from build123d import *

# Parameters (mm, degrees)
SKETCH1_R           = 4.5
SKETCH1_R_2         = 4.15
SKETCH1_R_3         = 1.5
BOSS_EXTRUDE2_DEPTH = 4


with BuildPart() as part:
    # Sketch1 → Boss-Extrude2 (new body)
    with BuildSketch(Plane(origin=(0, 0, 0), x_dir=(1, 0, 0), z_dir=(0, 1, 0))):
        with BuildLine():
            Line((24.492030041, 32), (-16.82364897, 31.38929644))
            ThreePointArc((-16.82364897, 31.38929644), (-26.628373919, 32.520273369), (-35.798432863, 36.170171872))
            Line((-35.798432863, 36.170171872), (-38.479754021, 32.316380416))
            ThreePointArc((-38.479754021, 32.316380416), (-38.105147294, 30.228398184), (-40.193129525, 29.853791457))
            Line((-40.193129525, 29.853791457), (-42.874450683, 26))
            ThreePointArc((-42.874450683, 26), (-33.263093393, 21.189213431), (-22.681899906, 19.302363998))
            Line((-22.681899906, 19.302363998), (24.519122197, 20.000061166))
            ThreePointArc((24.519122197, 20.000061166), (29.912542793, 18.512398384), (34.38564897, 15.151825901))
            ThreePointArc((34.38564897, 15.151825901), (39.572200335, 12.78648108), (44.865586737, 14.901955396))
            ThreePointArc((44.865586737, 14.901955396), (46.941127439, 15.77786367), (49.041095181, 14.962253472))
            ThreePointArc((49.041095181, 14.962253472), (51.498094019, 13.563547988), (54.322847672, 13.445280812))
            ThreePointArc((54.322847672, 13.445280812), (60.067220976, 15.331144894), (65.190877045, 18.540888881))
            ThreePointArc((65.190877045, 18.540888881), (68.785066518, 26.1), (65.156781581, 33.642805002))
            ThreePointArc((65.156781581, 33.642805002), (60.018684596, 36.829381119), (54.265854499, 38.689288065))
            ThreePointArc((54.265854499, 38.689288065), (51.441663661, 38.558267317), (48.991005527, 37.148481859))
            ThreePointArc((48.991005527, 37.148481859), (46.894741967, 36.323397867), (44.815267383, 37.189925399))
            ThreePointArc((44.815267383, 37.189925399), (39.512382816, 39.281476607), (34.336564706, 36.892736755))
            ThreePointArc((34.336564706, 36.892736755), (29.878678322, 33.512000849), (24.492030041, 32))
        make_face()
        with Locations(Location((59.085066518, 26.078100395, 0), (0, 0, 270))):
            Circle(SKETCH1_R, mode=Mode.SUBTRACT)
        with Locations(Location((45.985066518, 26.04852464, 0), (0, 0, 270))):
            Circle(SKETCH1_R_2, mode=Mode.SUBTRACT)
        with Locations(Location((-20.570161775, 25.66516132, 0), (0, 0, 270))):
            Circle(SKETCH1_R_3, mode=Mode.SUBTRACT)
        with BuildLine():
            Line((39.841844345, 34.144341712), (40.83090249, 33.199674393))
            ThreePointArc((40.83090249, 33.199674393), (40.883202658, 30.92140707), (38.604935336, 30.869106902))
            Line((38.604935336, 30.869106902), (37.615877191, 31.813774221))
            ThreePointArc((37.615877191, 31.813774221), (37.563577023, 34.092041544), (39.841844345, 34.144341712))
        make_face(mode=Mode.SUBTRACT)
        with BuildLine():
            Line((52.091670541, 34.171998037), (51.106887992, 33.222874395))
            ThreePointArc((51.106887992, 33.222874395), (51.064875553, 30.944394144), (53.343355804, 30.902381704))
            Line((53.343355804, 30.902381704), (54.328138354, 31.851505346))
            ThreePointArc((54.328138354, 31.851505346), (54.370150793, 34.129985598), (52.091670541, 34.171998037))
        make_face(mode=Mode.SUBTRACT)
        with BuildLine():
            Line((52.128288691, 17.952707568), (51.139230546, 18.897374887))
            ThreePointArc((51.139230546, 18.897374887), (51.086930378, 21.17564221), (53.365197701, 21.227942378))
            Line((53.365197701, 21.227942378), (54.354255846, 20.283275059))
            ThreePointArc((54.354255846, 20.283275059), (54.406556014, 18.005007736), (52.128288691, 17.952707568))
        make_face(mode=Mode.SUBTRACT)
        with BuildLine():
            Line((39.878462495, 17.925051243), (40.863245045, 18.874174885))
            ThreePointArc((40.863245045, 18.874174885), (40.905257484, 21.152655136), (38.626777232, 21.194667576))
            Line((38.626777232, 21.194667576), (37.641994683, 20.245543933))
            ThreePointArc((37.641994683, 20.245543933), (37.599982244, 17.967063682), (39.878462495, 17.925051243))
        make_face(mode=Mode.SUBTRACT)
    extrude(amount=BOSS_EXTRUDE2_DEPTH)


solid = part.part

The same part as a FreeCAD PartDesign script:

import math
import FreeCAD as App
import Part
import Sketcher

V = App.Vector
Q = App.Units.Quantity

doc = App.newDocument("Part")
params = doc.addObject("Spreadsheet::Sheet", "Params")
for row, (alias, value) in enumerate([
    ("sketch1_diameter", "3 mm"),
    ("sketch1_diameter2", "9 mm"),
    ("sketch1_radius", "15 mm"),
    ("sketch1_radius2", "3 mm"),
    ("sketch1_radius3", "6 mm"),
    ("pad1_length", "4 mm"),
], start=1):
    params.set(f"A{row}", alias)
    params.set(f"B{row}", "=" + value)
    params.setAlias(f"B{row}", alias)

body = doc.addObject("PartDesign::Body", "Body")

# Sketch on XZ plane
sketch1 = body.newObject("Sketcher::SketchObject", "Sketch")
sketch1.AttachmentSupport = (doc.getObject("XZ_Plane"), [""])
sketch1.MapMode = "FlatFace"
sketch1.addGeometry(Part.LineSegment(V(24.5, -32, 0), V(-16.8, -31.4, 0)), False)
sketch1.addGeometry(Part.ArcOfCircle(Part.Circle(V(-17.5, -68.9, 0), V(0, 0, 1), 37.5), math.radians(89), math.radians(119)), False)
sketch1.addGeometry(Part.LineSegment(V(-35.8, -36.2, 0), V(-38.5, -32.3, 0)), False)
sketch1.addGeometry(Part.ArcOfCircle(Part.Circle(V(-39.3, -31.1, 0), V(0, 0, 1), 1.5), math.radians(-55), math.radians(125)), False)
sketch1.addGeometry(Part.LineSegment(V(-40.2, -29.9, 0), V(-42.9, -26, 0)), False)
sketch1.addGeometry(Part.ArcOfCircle(Part.Circle(V(-21.5, -56.8, 0), V(0, 0, 1), 37.5), math.radians(92), math.radians(125)), False)
sketch1.addGeometry(Part.LineSegment(V(-22.7, -19.3, 0), V(24.5, -20, 0)), False)
sketch1.addGeometry(Part.ArcOfCircle(Part.Circle(V(23.3, -5, 0), V(0, 0, 1), 15), math.radians(-85), math.radians(-42)), False)
sketch1.addGeometry(Part.ArcOfCircle(Part.Circle(V(39.7, -20, 0), V(0, 0, 1), 7.3), math.radians(45), math.radians(138)), False)
sketch1.addGeometry(Part.ArcOfCircle(Part.Circle(V(47, -12.8, 0), V(0, 0, 1), 3), math.radians(-135), math.radians(-47)), False)
sketch1.addGeometry(Part.ArcOfCircle(Part.Circle(V(53.2, -19.3, 0), V(0, 0, 1), 6), math.radians(79), math.radians(133)), False)
sketch1.addGeometry(Part.ArcOfCircle(Part.Circle(V(49.5, -38, 0), V(0, 0, 1), 25), math.radians(51), math.radians(79)), False)
sketch1.addGeometry(Part.ArcOfCircle(Part.Circle(V(59.1, -26.1, 0), V(0, 0, 1), 9.7), math.radians(-51), math.radians(51)), False)
sketch1.addGeometry(Part.ArcOfCircle(Part.Circle(V(49.5, -14.1, 0), V(0, 0, 1), 25), math.radians(-79), math.radians(-51)), False)
sketch1.addGeometry(Part.ArcOfCircle(Part.Circle(V(53.1, -32.8, 0), V(0, 0, 1), 6), math.radians(-134), math.radians(-79)), False)
sketch1.addGeometry(Part.ArcOfCircle(Part.Circle(V(46.9, -39.3, 0), V(0, 0, 1), 3), math.radians(46), math.radians(135)), False)
sketch1.addGeometry(Part.ArcOfCircle(Part.Circle(V(39.7, -32, 0), V(0, 0, 1), 7.3), math.radians(-138), math.radians(-45)), False)
sketch1.addGeometry(Part.ArcOfCircle(Part.Circle(V(23.2, -46.9, 0), V(0, 0, 1), 15), math.radians(42), math.radians(85)), False)
sketch1.addGeometry(Part.Circle(V(-20.6, -25.7, 0), V(0, 0, 1), 1.5), False)
sketch1.addGeometry(Part.LineSegment(V(40.9, -18.9, 0), V(39.9, -17.9, 0)), False)
sketch1.addGeometry(Part.ArcOfCircle(Part.Circle(V(38.8, -19.1, 0), V(0, 0, 1), 1.6), math.radians(46), math.radians(226)), False)
sketch1.addGeometry(Part.LineSegment(V(37.6, -20.2, 0), V(38.6, -21.2, 0)), False)
sketch1.addGeometry(Part.ArcOfCircle(Part.Circle(V(39.7, -20, 0), V(0, 0, 1), 1.6), math.radians(-134), math.radians(46)), False)
sketch1.addGeometry(Part.ArcOfCircle(Part.Circle(V(53.2, -19.1, 0), V(0, 0, 1), 1.6), math.radians(-46), math.radians(134)), False)
sketch1.addGeometry(Part.LineSegment(V(52.1, -18, 0), V(51.1, -18.9, 0)), False)
sketch1.addGeometry(Part.ArcOfCircle(Part.Circle(V(52.3, -20.1, 0), V(0, 0, 1), 1.6), math.radians(134), math.radians(314)), False)
sketch1.addGeometry(Part.LineSegment(V(53.4, -21.2, 0), V(54.4, -20.3, 0)), False)
sketch1.addGeometry(Part.Circle(V(46, -26, 0), V(0, 0, 1), 4.2), False)
sketch1.addGeometry(Part.Circle(V(59.1, -26.1, 0), V(0, 0, 1), 4.5), False)
sketch1.addGeometry(Part.ArcOfCircle(Part.Circle(V(38.7, -33, 0), V(0, 0, 1), 1.6), math.radians(134), math.radians(314)), False)
sketch1.addGeometry(Part.LineSegment(V(39.8, -34.1, 0), V(40.8, -33.2, 0)), False)
sketch1.addGeometry(Part.ArcOfCircle(Part.Circle(V(39.7, -32, 0), V(0, 0, 1), 1.6), math.radians(-46), math.radians(134)), False)
sketch1.addGeometry(Part.LineSegment(V(38.6, -30.9, 0), V(37.6, -31.8, 0)), False)
sketch1.addGeometry(Part.LineSegment(V(51.1, -33.2, 0), V(52.1, -34.2, 0)), False)
sketch1.addGeometry(Part.ArcOfCircle(Part.Circle(V(53.2, -33, 0), V(0, 0, 1), 1.6), math.radians(-134), math.radians(46)), False)
sketch1.addGeometry(Part.LineSegment(V(54.3, -31.9, 0), V(53.3, -30.9, 0)), False)
sketch1.addGeometry(Part.ArcOfCircle(Part.Circle(V(52.2, -32.1, 0), V(0, 0, 1), 1.6), math.radians(46), math.radians(226)), False)
sketch1.addConstraint(Sketcher.Constraint("Coincident", 0, 2, 1, 1))
sketch1.addConstraint(Sketcher.Constraint("Coincident", 1, 2, 2, 1))
sketch1.addConstraint(Sketcher.Constraint("Coincident", 2, 2, 3, 1))
sketch1.addConstraint(Sketcher.Constraint("Coincident", 3, 2, 4, 1))
sketch1.addConstraint(Sketcher.Constraint("Coincident", 4, 2, 5, 2))
sketch1.addConstraint(Sketcher.Constraint("Coincident", 5, 1, 6, 1))
sketch1.addConstraint(Sketcher.Constraint("Coincident", 6, 2, 7, 1))
sketch1.addConstraint(Sketcher.Constraint("Tangent", 7, 2, 8, 2))
sketch1.addConstraint(Sketcher.Constraint("Tangent", 8, 1, 9, 1))
sketch1.addConstraint(Sketcher.Constraint("Tangent", 9, 2, 10, 2))
sketch1.addConstraint(Sketcher.Constraint("Tangent", 10, 1, 11, 2))
sketch1.addConstraint(Sketcher.Constraint("Tangent", 11, 1, 12, 2))
sketch1.addConstraint(Sketcher.Constraint("Tangent", 12, 1, 13, 2))
sketch1.addConstraint(Sketcher.Constraint("Tangent", 13, 1, 14, 2))
sketch1.addConstraint(Sketcher.Constraint("Tangent", 14, 1, 15, 1))
sketch1.addConstraint(Sketcher.Constraint("Tangent", 15, 2, 16, 2))
sketch1.addConstraint(Sketcher.Constraint("Tangent", 16, 1, 17, 1))
sketch1.addConstraint(Sketcher.Constraint("Coincident", 17, 2, 0, 1))
sketch1.addConstraint(Sketcher.Constraint("Tangent", 19, 2, 20, 1))
sketch1.addConstraint(Sketcher.Constraint("Tangent", 20, 2, 21, 1))
sketch1.addConstraint(Sketcher.Constraint("Tangent", 21, 2, 22, 1))
sketch1.addConstraint(Sketcher.Constraint("Tangent", 22, 2, 19, 1))
sketch1.addConstraint(Sketcher.Constraint("Tangent", 23, 2, 24, 1))
sketch1.addConstraint(Sketcher.Constraint("Tangent", 24, 2, 25, 1))
sketch1.addConstraint(Sketcher.Constraint("Tangent", 25, 2, 26, 1))
sketch1.addConstraint(Sketcher.Constraint("Tangent", 26, 2, 23, 1))
sketch1.addConstraint(Sketcher.Constraint("Tangent", 29, 2, 30, 1))
sketch1.addConstraint(Sketcher.Constraint("Tangent", 30, 2, 31, 1))
sketch1.addConstraint(Sketcher.Constraint("Tangent", 31, 2, 32, 1))
sketch1.addConstraint(Sketcher.Constraint("Tangent", 32, 2, 29, 1))
sketch1.addConstraint(Sketcher.Constraint("Tangent", 33, 2, 34, 1))
sketch1.addConstraint(Sketcher.Constraint("Tangent", 34, 2, 35, 1))
sketch1.addConstraint(Sketcher.Constraint("Tangent", 35, 2, 36, 1))
sketch1.addConstraint(Sketcher.Constraint("Tangent", 36, 2, 33, 1))
sketch1.addConstraint(Sketcher.Constraint("Coincident", 22, 3, 8, 3))
sketch1.addConstraint(Sketcher.Constraint("Coincident", 28, 3, 12, 3))
sketch1.addConstraint(Sketcher.Constraint("Coincident", 31, 3, 16, 3))
sketch1.addConstraint(Sketcher.Constraint("Equal", 1, 5))
sketch1.addConstraint(Sketcher.Constraint("Equal", 11, 13))
sketch1.addConstraint(Sketcher.Constraint("Equal", 10, 14))
sketch1.addConstraint(Sketcher.Constraint("Equal", 9, 15))
sketch1.addConstraint(Sketcher.Constraint("Equal", 8, 16))
sketch1.addConstraint(Sketcher.Constraint("Equal", 7, 17))
sketch1.addConstraint(Sketcher.Constraint("Equal", 3, 18))
sketch1.addConstraint(Sketcher.Constraint("Equal", 20, 22))
sketch1.addConstraint(Sketcher.Constraint("Equal", 22, 23))
sketch1.addConstraint(Sketcher.Constraint("Equal", 23, 25))
sketch1.addConstraint(Sketcher.Constraint("Equal", 25, 29))
sketch1.addConstraint(Sketcher.Constraint("Equal", 29, 31))
sketch1.addConstraint(Sketcher.Constraint("Equal", 31, 34))
sketch1.addConstraint(Sketcher.Constraint("Equal", 34, 36))
sketch1.addConstraint(Sketcher.Constraint("Parallel", 2, 4))
sketch1.addConstraint(Sketcher.Constraint("Parallel", 0, 6))
sketch1.addConstraint(Sketcher.Constraint("Parallel", 26, 30))
sketch1.addConstraint(Sketcher.Constraint("Parallel", 21, 33))
sketch1.addConstraint(Sketcher.Constraint("Equal", 2, 4))
sketch1.addConstraint(Sketcher.Constraint("Equal", 21, 24))
sketch1.addConstraint(Sketcher.Constraint("Equal", 26, 30))
sketch1.addConstraint(Sketcher.Constraint("Equal", 32, 33))
sketch1.addConstraint(Sketcher.Constraint("Diameter", 18, Q("3 mm")))
sketch1.addConstraint(Sketcher.Constraint("Diameter", 28, Q("9 mm")))
sketch1.addConstraint(Sketcher.Constraint("Radius", 7, Q("15 mm")))
sketch1.addConstraint(Sketcher.Constraint("Radius", 9, Q("3 mm")))
sketch1.addConstraint(Sketcher.Constraint("Radius", 10, Q("6 mm")))
sketch1.addConstraint(Sketcher.Constraint("Radius", 11, Q("25 mm")))
sketch1.addConstraint(Sketcher.Constraint("Diameter", 27, Q("8.3 mm")))
sketch1.addConstraint(Sketcher.Constraint("Radius", 1, Q("37.5 mm")))
sketch1.addConstraint(Sketcher.Constraint("Radius", 8, Q("7.25 mm")))
sketch1.addConstraint(Sketcher.Constraint("DistanceY", 4, 2, -1, 1, Q("26 mm")))
sketch1.addConstraint(Sketcher.Constraint("DistanceY", 17, 2, -1, 1, Q("32 mm")))
sketch1.addConstraint(Sketcher.Constraint("DistanceY", 33, 2, -1, 1, Q("34.171998 mm")))
sketch1.addConstraint(Sketcher.Constraint("Radius", 12, Q("9.700025 mm")))
sketch1.addConstraint(Sketcher.Constraint("Radius", 20, Q("1.611403 mm")))
sketch1.addConstraint(Sketcher.Constraint("DistanceY", 12, 3, -1, 1, Q("26.0781 mm")))
sketch1.addConstraint(Sketcher.Constraint("DistanceX", 5, 1, -1, 1, Q("22.6819 mm")))
sketch1.addConstraint(Sketcher.Constraint("DistanceX", 3, 3, 1, 3, Q("21.870198 mm")))
sketch1.addConstraint(Sketcher.Constraint("DistanceY", 5, 3, 18, 3, Q("31.117201 mm")))
sketch1.addConstraint(Sketcher.Constraint("DistanceX", 13, 3, 23, 3, Q("3.733201 mm")))
sketch1.addConstraint(Sketcher.Constraint("DistanceY", 15, 3, 34, 3, Q("6.311498 mm")))
sketch1.addConstraint(Sketcher.Constraint("DistanceY", 9, 2, 8, 1, Q("0.060298 mm")))
sketch1.addConstraint(Sketcher.Constraint("DistanceX", 9, 2, 10, 3, Q("4.113299 mm")))
sketch1.addConstraint(Sketcher.Constraint("DistanceX", 14, 1, 34, 3, Q("4.218899 mm")))
sketch1.addConstraint(Sketcher.Constraint("DistanceX", 17, 3, 17, 2, Q("1.289302 mm")))
sketch1.addConstraint(Sketcher.Constraint("DistanceY", 10, 3, 23, 2, Q("1.3777 mm")))
sketch1.addConstraint(Sketcher.Constraint("DistanceX", 36, 2, 14, 3, Q("2.017099 mm")))
sketch1.addConstraint(Sketcher.Constraint("Distance", 6, Q("47.206178 mm")))
sketch1.addConstraint(Sketcher.Constraint("Distance", 19, Q("1.367711 mm")))
sketch1.addConstraint(Sketcher.Constraint("DistanceY", 1, 3, -1, 1, Q("68.88379 mm")))
sketch1.addConstraint(Sketcher.Constraint("DistanceX", 3, 3, -1, 1, Q("39.336442 mm")))
sketch1.addConstraint(Sketcher.Constraint("DistanceY", 5, 3, -1, 1, Q("56.782362 mm")))
sketch1.addConstraint(Sketcher.Constraint("DistanceX", -1, 1, 8, 3, Q("39.745011 mm")))
sketch1.addConstraint(Sketcher.Constraint("DistanceY", 8, 3, -1, 1, Q("20.034421 mm")))
sketch1.addConstraint(Sketcher.Constraint("DistanceX", -1, 1, 13, 3, Q("49.508071 mm")))
sketch1.addConstraint(Sketcher.Constraint("DistanceY", 15, 3, -1, 1, Q("39.32325 mm")))
sketch1.addConstraint(Sketcher.Constraint("DistanceX", -1, 1, 16, 3, Q("39.717919 mm")))
sketch1.addConstraint(Sketcher.Constraint("DistanceY", 16, 3, -1, 1, Q("32.034391 mm")))
sketch1.addConstraint(Sketcher.Constraint("DistanceX", 18, 3, -1, 1, Q("20.570162 mm")))
sketch1.addConstraint(Sketcher.Constraint("DistanceY", 23, 3, -1, 1, Q("19.117991 mm")))
sketch1.addConstraint(Sketcher.Constraint("DistanceX", 0, 2, -1, 1, Q("16.823649 mm")))
sketch1.addConstraint(Sketcher.Constraint("DistanceY", 1, 2, -1, 1, Q("36.170172 mm")))
sketch1.addConstraint(Sketcher.Constraint("DistanceY", 2, 2, -1, 1, Q("32.31638 mm")))
sketch1.addConstraint(Sketcher.Constraint("DistanceX", 3, 2, -1, 1, Q("40.19313 mm")))
sketch1.addConstraint(Sketcher.Constraint("DistanceX", 27, 3, 14, 3, Q("7.13892 mm")))
sketch1.addConstraint(Sketcher.Constraint("DistanceY", 14, 3, 27, 3, Q("6.750421 mm")))
sketch1.setExpression("Constraints[59]", "Params.sketch1_diameter")
sketch1.setExpression("Constraints[60]", "Params.sketch1_diameter2")
sketch1.setExpression("Constraints[61]", "Params.sketch1_radius")
sketch1.setExpression("Constraints[62]", "Params.sketch1_radius2")
sketch1.setExpression("Constraints[63]", "Params.sketch1_radius3")
pad1 = body.newObject("PartDesign::Pad", "Pad")
pad1.Profile = sketch1
pad1.setExpression("Length", "Params.pad1_length")
pad1.Reversed = True

doc.recompute()
